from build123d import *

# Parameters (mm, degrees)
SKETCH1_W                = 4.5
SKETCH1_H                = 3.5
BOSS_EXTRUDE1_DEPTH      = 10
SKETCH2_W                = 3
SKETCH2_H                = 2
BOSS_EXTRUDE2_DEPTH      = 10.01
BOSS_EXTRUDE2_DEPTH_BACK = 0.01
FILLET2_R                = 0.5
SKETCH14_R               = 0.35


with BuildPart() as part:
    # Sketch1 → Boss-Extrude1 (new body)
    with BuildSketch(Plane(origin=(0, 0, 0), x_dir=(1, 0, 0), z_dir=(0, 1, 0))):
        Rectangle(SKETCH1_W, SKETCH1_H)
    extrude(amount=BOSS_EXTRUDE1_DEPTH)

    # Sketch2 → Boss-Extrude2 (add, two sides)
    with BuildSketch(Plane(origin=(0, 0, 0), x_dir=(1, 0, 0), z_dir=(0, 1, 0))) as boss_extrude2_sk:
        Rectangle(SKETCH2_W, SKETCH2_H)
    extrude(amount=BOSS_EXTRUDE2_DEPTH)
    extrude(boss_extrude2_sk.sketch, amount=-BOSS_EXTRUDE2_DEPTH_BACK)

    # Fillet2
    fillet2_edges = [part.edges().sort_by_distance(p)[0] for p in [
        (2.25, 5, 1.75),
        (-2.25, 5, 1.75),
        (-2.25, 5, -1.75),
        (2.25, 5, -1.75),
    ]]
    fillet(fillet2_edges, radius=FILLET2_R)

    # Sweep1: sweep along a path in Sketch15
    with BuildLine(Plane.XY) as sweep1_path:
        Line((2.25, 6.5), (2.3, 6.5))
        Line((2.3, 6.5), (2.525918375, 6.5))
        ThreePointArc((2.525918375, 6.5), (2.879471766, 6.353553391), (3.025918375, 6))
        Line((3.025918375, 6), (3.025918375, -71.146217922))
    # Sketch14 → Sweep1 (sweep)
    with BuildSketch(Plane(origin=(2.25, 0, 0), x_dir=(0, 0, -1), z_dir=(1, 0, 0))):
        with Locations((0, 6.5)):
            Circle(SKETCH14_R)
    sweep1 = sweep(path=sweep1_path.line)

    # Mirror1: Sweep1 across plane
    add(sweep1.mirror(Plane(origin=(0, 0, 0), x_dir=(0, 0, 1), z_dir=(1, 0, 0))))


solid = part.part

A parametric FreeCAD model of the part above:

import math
import FreeCAD as App
import Part
import Sketcher
from FreeCAD import Vector
Q = App.Units.Quantity


def edges_at(feature, points):
    """Names of the edges that pass closest to the given points."""
    edges = feature.Shape.Edges
    near = lambda p: min(range(len(edges)), key=lambda i: edges[i].distToShape(Part.Vertex(*p))[0])
    return sorted({f"Edge{near(p) + 1}" for p in points})

doc = App.newDocument("Part")
params = doc.addObject("Spreadsheet::Sheet", "Params")
for row, (alias, value) in enumerate([
    ("sketch1_width", "4.5 mm"),
    ("sketch1_height", "3.5 mm"),
    ("pad1_length", "10 mm"),
    ("sketch2_width", "3 mm"),
    ("sketch2_height", "2 mm"),
    ("pad2_length", "10.01 mm"),
    ("pad2_length2", "0.01 mm"),
    ("fillet_radius", "0.5 mm"),
    ("sketch3_diameter", "0.7 mm"),
    ("sketch4_radius", "0.5 mm"),
], start=1):
    params.set(f"A{row}", alias)
    params.set(f"B{row}", "=" + value)
    params.setAlias(f"B{row}", alias)

body = doc.addObject("PartDesign::Body", "Body")

# Sketch on XZ plane
sketch1 = doc.addObject("Sketcher::SketchObject", "Sketch")
body.addObject(sketch1)
sketch1.AttachmentSupport = (doc.XZ_Plane, [""])
sketch1.MapMode = "FlatFace"
sketch1.addGeometry([
    Part.LineSegment(Vector(-2.2, -1.8, 0), Vector(-2.2, 1.8, 0)),
    Part.LineSegment(Vector(-2.2, 1.8, 0), Vector(2.2, 1.8, 0)),
    Part.LineSegment(Vector(2.2, 1.8, 0), Vector(2.2, -1.8, 0)),
    Part.LineSegment(Vector(2.2, -1.8, 0), Vector(-2.2, -1.8, 0)),
], False)
sketch1.addConstraint([
    Sketcher.Constraint("Coincident", 0, 2, 1, 1),
    Sketcher.Constraint("Coincident", 1, 2, 2, 1),
    Sketcher.Constraint("Coincident", 2, 2, 3, 1),
    Sketcher.Constraint("Coincident", 3, 2, 0, 1),
    Sketcher.Constraint("Vertical", 0),
    Sketcher.Constraint("Horizontal", 1),
    Sketcher.Constraint("Vertical", 2),
    Sketcher.Constraint("Horizontal", 3),
    Sketcher.Constraint("Symmetric", 0, 2, 2, 2, -1, 1),
    Sketcher.Constraint("DistanceX", 1, 1, 1, 2, Q("4.5 mm")),
    Sketcher.Constraint("DistanceY", 0, 1, 0, 2, Q("3.5 mm")),
])
sketch1.setExpression("Constraints[9]", "Params.sketch1_width")
sketch1.setExpression("Constraints[10]", "Params.sketch1_height")
pad1 = doc.addObject("PartDesign::Pad", "Pad")
body.addObject(pad1)
pad1.Profile = sketch1
pad1.setExpression("Length", "Params.pad1_length")
pad1.Reversed = True

# Sketch on XZ plane
sketch2 = doc.addObject("Sketcher::SketchObject", "Sketch001")
body.addObject(sketch2)
sketch2.AttachmentSupport = (doc.XZ_Plane, [""])
sketch2.MapMode = "FlatFace"
sketch2.addGeometry([
    Part.LineSegment(Vector(-1.5, -1, 0), Vector(-1.5, 1, 0)),
    Part.LineSegment(Vector(-1.5, 1, 0), Vector(1.5, 1, 0)),
    Part.LineSegment(Vector(1.5, 1, 0), Vector(1.5, -1, 0)),
    Part.LineSegment(Vector(1.5, -1, 0), Vector(-1.5, -1, 0)),
], False)
sketch2.addConstraint([
    Sketcher.Constraint("Coincident", 0, 2, 1, 1),
    Sketcher.Constraint("Coincident", 1, 2, 2, 1),
    Sketcher.Constraint("Coincident", 2, 2, 3, 1),
    Sketcher.Constraint("Coincident", 3, 2, 0, 1),
    Sketcher.Constraint("Vertical", 0),
    Sketcher.Constraint("Horizontal", 1),
    Sketcher.Constraint("Vertical", 2),
    Sketcher.Constraint("Horizontal", 3),
    Sketcher.Constraint("Symmetric", 0, 2, 2, 2, -1, 1),
    Sketcher.Constraint("DistanceX", 1, 1, 1, 2, Q("3 mm")),
    Sketcher.Constraint("DistanceY", 0, 1, 0, 2, Q("2 mm")),
])
sketch2.setExpression("Constraints[9]", "Params.sketch2_width")
sketch2.setExpression("Constraints[10]", "Params.sketch2_height")
pad2 = doc.addObject("PartDesign::Pad", "Pad001")
body.addObject(pad2)
pad2.Profile = sketch2
pad2.Type = "TwoLengths"
pad2.setExpression("Length", "Params.pad2_length")
pad2.setExpression("Length2", "Params.pad2_length2")
pad2.Reversed = True
doc.recompute()

fillet = doc.addObject("PartDesign::Fillet", "Fillet")
body.addObject(fillet)
fillet.Base = (pad2, edges_at(pad2, [
    (2.25, 5, 1.75),
    (-2.25, 5, 1.75),
    (-2.25, 5, -1.75),
    (2.25, 5, -1.75),
]))
fillet.setExpression("Radius", "Params.fillet_radius")

# Sketch on YZ plane
sketch3 = doc.addObject("Sketcher::SketchObject", "Sketch002")
body.addObject(sketch3)
sketch3.AttachmentSupport = (doc.YZ_Plane, [""])
sketch3.MapMode = "FlatFace"
sketch3.AttachmentOffset = App.Placement(Vector(0, 0, 2.25), App.Rotation())
sketch3.addGeometry(Part.Circle(Vector(6.5, 0, 0), Vector(0, 0, 1), 0.35), False)
sketch3.addConstraint([
    Sketcher.Constraint("PointOnObject", 0, 3, -1),
    Sketcher.Constraint("Diameter", 0, Q("0.7 mm")),
    Sketcher.Constraint("DistanceX", -1, 1, 0, 3, Q("6.5 mm")),
])
sketch3.setExpression("Constraints[1]", "Params.sketch3_diameter")

# Sketch on XY plane
sketch4 = doc.addObject("Sketcher::SketchObject", "Sketch003")
body.addObject(sketch4)
sketch4.AttachmentSupport = (doc.XY_Plane, [""])
sketch4.MapMode = "FlatFace"
sketch4.addGeometry([
    Part.LineSegment(Vector(2.25, 6.5, 0), Vector(2.53, 6.5, 0)),
    Part.ArcOfCircle(Part.Circle(Vector(2.53, 6, 0), Vector(0, 0, 1), 0.5), math.radians(0), math.radians(90)),
    Part.LineSegment(Vector(3.03, 6, 0), Vector(3.03, -71.15, 0)),
], False)
sketch4.addConstraint([
    Sketcher.Constraint("Tangent", 0, 2, 1, 2),
    Sketcher.Constraint("Tangent", 1, 1, 2, 1),
    Sketcher.Constraint("Horizontal", 0),
    Sketcher.Constraint("Vertical", 2),
    Sketcher.Constraint("Radius", 1, Q("0.5 mm")),
    Sketcher.Constraint("DistanceY", -1, 1, 1, 3, Q("6 mm")),
    Sketcher.Constraint("DistanceX", -1, 1, 0, 1, Q("2.25 mm")),
    Sketcher.Constraint("DistanceX", 0, 1, 0, 2, Q("0.275918 mm")),
    Sketcher.Constraint("DistanceY", 2, 2, 2, 1, Q("77.146218 mm")),
])
sketch4.setExpression("Constraints[4]", "Params.sketch4_radius")
doc.recompute()

additivepipe = doc.addObject("PartDesign::AdditivePipe", "AdditivePipe")
body.addObject(additivepipe)
additivepipe.Profile = sketch3
additivepipe.Spine = (sketch4, ["Edge1", "Edge2", "Edge3"])
doc.recompute()

mirrored = doc.addObject("PartDesign::Mirrored", "Mirrored")
body.addObject(mirrored)
mirrored.Originals = [additivepipe]
mirrored.MirrorPlane = (doc.YZ_Plane, [""])
body.Tip = mirrored

doc.recompute()
